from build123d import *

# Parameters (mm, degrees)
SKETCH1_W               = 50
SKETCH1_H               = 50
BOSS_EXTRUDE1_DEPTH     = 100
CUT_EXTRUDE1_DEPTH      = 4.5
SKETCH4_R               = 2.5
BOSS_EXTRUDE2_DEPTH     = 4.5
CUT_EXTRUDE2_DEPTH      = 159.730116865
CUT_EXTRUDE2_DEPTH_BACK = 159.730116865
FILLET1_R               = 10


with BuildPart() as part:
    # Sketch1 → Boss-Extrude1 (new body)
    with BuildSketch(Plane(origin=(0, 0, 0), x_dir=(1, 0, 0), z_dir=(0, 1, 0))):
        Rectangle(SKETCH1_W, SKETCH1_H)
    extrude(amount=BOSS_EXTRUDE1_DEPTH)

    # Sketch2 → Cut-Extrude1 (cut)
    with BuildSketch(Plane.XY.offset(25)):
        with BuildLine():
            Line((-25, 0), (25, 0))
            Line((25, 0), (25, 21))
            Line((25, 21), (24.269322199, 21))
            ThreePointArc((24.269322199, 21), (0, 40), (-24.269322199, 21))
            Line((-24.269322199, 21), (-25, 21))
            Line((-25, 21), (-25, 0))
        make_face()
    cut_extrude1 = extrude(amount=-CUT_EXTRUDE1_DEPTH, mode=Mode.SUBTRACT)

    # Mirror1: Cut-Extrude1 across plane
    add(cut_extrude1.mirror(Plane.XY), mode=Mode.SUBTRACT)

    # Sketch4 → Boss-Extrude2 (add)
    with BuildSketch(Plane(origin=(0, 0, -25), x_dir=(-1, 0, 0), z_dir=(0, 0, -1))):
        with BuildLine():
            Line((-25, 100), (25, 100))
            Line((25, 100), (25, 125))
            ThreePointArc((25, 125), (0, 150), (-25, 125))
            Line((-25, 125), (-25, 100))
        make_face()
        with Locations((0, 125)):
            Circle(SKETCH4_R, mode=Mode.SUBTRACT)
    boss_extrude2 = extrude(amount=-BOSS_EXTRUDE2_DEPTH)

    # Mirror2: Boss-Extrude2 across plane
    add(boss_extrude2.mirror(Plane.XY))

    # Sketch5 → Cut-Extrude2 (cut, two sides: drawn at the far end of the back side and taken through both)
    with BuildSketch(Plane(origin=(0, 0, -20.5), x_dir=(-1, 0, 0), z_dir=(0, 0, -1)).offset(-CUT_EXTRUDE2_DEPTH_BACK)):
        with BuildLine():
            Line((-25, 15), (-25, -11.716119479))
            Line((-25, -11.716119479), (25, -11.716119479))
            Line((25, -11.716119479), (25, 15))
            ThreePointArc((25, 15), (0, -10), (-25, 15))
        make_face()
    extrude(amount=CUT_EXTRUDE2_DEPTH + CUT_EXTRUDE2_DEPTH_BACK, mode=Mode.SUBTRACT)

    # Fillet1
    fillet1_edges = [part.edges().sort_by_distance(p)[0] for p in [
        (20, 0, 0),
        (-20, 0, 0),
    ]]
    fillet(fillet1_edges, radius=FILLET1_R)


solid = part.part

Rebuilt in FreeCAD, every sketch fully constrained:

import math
import FreeCAD as App
import Part
import Sketcher


def edges_at(feature, points):
    """Names of the edges that pass closest to the given points."""
    edges = feature.Shape.Edges
    near = lambda p: min(range(len(edges)), key=lambda i: edges[i].distToShape(Part.Vertex(*p))[0])
    return sorted({f"Edge{near(p) + 1}" for p in points})


def add_polygon(sketch, points):
    """Adds a closed chain of lines whose ends are joined by coincident constraints."""
    first, n = sketch.GeometryCount, len(points)
    for a, b in zip(points, points[1:] + points[:1]):
        sketch.addGeometry(Part.LineSegment(App.Vector(*a, 0), App.Vector(*b, 0)), False)
    for i in range(n):
        sketch.addConstraint(Sketcher.Constraint("Coincident", first + i, 2, first + (i + 1) % n, 1))

doc = App.newDocument("Part")
params = doc.addObject("Spreadsheet::Sheet", "Params")
for row, (alias, value) in enumerate([
    ("sketch1_width", "50 mm"),
    ("pad1_length", "100 mm"),
    ("sketch2_radius", "25 mm"),
    ("sketch2_width", "50 mm"),
    ("sketch2_height", "21 mm"),
    ("pocket1_length", "4.5 mm"),
    ("sketch3_diameter", "5 mm"),
    ("sketch3_radius", "25 mm"),
    ("sketch3_height", "25 mm"),
    ("pad2_length", "4.5 mm"),
    ("sketch4_radius", "25 mm"),
    ("fillet_radius", "10 mm"),
], start=1):
    params.set(f"A{row}", alias)
    params.set(f"B{row}", "=" + value)
    params.setAlias(f"B{row}", alias)

body = doc.addObject("PartDesign::Body", "Body")

sketch1 = doc.addObject("Sketcher::SketchObject", "Sketch")
body.addObject(sketch1)
sketch1.AttachmentSupport = (doc.XZ_Plane, [""])
sketch1.MapMode = "FlatFace"
add_polygon(sketch1, [(-25, -25), (-25, 25), (25, 25), (25, -25)])
sketch1.addConstraint(Sketcher.Constraint("Vertical", 0))
sketch1.addConstraint(Sketcher.Constraint("Horizontal", 1))
sketch1.addConstraint(Sketcher.Constraint("Vertical", 2))
sketch1.addConstraint(Sketcher.Constraint("Horizontal", 3))
sketch1.addConstraint(Sketcher.Constraint("Symmetric", 0, 2, 2, 2, -1, 1))
sketch1.addConstraint(Sketcher.Constraint("Equal", 3, 0))
sketch1.addConstraint(Sketcher.Constraint("DistanceX", 1, 1, 1, 2, 50.0))
sketch1.setExpression("Constraints[10]", "Params.sketch1_width")
pad1 = doc.addObject("PartDesign::Pad", "Pad")
body.addObject(pad1)
pad1.Profile = sketch1
pad1.setExpression("Length", "Params.pad1_length")
pad1.Reversed = True

sketch2 = doc.addObject("Sketcher::SketchObject", "Sketch001")
body.addObject(sketch2)
sketch2.AttachmentSupport = (doc.XY_Plane, [""])
sketch2.MapMode = "FlatFace"
sketch2.AttachmentOffset = App.Placement(App.Vector(0, 0, 25), App.Rotation())
sketch2.addGeometry(Part.LineSegment(App.Vector(-25, 0, 0), App.Vector(25, 0, 0)), False)
sketch2.addGeometry(Part.LineSegment(App.Vector(25, 0, 0), App.Vector(25, 21, 0)), False)
sketch2.addGeometry(Part.LineSegment(App.Vector(25, 21, 0), App.Vector(24.3, 21, 0)), False)
sketch2.addGeometry(Part.ArcOfCircle(Part.Circle(App.Vector(0, 15, 0), App.Vector(0, 0, 1), 25), math.radians(14), math.radians(166)), False)
sketch2.addGeometry(Part.LineSegment(App.Vector(-24.3, 21, 0), App.Vector(-25, 21, 0)), False)
sketch2.addGeometry(Part.LineSegment(App.Vector(-25, 21, 0), App.Vector(-25, 0, 0)), False)
sketch2.addConstraint(Sketcher.Constraint("Coincident", 0, 2, 1, 1))
sketch2.addConstraint(Sketcher.Constraint("Coincident", 1, 2, 2, 1))
sketch2.addConstraint(Sketcher.Constraint("Coincident", 2, 2, 3, 1))
sketch2.addConstraint(Sketcher.Constraint("Coincident", 3, 2, 4, 1))
sketch2.addConstraint(Sketcher.Constraint("Coincident", 4, 2, 5, 1))
sketch2.addConstraint(Sketcher.Constraint("Coincident", 5, 2, 0, 1))
sketch2.addConstraint(Sketcher.Constraint("Horizontal", 0))
sketch2.addConstraint(Sketcher.Constraint("Vertical", 1))
sketch2.addConstraint(Sketcher.Constraint("Horizontal", 2))
sketch2.addConstraint(Sketcher.Constraint("Horizontal", 4))
sketch2.addConstraint(Sketcher.Constraint("Vertical", 5))
sketch2.addConstraint(Sketcher.Constraint("Symmetric", 0, 2, 5, 2, -1, 1))
sketch2.addConstraint(Sketcher.Constraint("Symmetric", 2, 2, 3, 2, -2))
sketch2.addConstraint(Sketcher.Constraint("Radius", 3, 25.0))
sketch2.addConstraint(Sketcher.Constraint("DistanceX", 0, 1, 0, 2, 50.0))
sketch2.addConstraint(Sketcher.Constraint("DistanceY", 1, 1, 1, 2, 21.0))
sketch2.addConstraint(Sketcher.Constraint("DistanceY", -1, 1, 3, 3, 15.0))
sketch2.setExpression("Constraints[13]", "Params.sketch2_radius")
sketch2.setExpression("Constraints[14]", "Params.sketch2_width")
sketch2.setExpression("Constraints[15]", "Params.sketch2_height")
pocket1 = doc.addObject("PartDesign::Pocket", "Pocket")
body.addObject(pocket1)
pocket1.Profile = sketch2
pocket1.setExpression("Length", "Params.pocket1_length")
doc.recompute()

mirrored = doc.addObject("PartDesign::Mirrored", "Mirrored")
body.addObject(mirrored)
mirrored.Originals = [pocket1]
mirrored.MirrorPlane = (doc.XY_Plane, [""])
body.Tip = mirrored

sketch3 = doc.addObject("Sketcher::SketchObject", "Sketch002")
body.addObject(sketch3)
sketch3.AttachmentSupport = (doc.XY_Plane, [""])
sketch3.MapMode = "FlatFace"
sketch3.AttachmentOffset = App.Placement(App.Vector(0, 0, -25), App.Rotation())
sketch3.addGeometry(Part.LineSegment(App.Vector(25, 100, 0), App.Vector(-25, 100, 0)), False)
sketch3.addGeometry(Part.LineSegment(App.Vector(-25, 100, 0), App.Vector(-25, 125, 0)), False)
sketch3.addGeometry(Part.ArcOfCircle(Part.Circle(App.Vector(0, 125, 0), App.Vector(0, 0, 1), 25), math.radians(0), math.radians(180)), False)
sketch3.addGeometry(Part.LineSegment(App.Vector(25, 125, 0), App.Vector(25, 100, 0)), False)
sketch3.addGeometry(Part.Circle(App.Vector(0, 125, 0), App.Vector(0, 0, 1), 2.5), False)
sketch3.addConstraint(Sketcher.Constraint("Coincident", 0, 2, 1, 1))
sketch3.addConstraint(Sketcher.Constraint("Tangent", 1, 2, 2, 2))
sketch3.addConstraint(Sketcher.Constraint("Tangent", 2, 1, 3, 1))
sketch3.addConstraint(Sketcher.Constraint("Coincident", 3, 2, 0, 1))
sketch3.addConstraint(Sketcher.Constraint("Horizontal", 0))
sketch3.addConstraint(Sketcher.Constraint("Vertical", 1))
sketch3.addConstraint(Sketcher.Constraint("Vertical", 3))
sketch3.addConstraint(Sketcher.Constraint("Coincident", 4, 3, 2, 3))
sketch3.addConstraint(Sketcher.Constraint("PointOnObject", 2, 3, -2))
sketch3.addConstraint(Sketcher.Constraint("Diameter", 4, 5.0))
sketch3.addConstraint(Sketcher.Constraint("Radius", 2, 25.0))
sketch3.addConstraint(Sketcher.Constraint("DistanceY", 1, 1, 1, 2, 25.0))
sketch3.addConstraint(Sketcher.Constraint("DistanceY", -1, 1, 2, 3, 125.0))
sketch3.setExpression("Constraints[9]", "Params.sketch3_diameter")
sketch3.setExpression("Constraints[10]", "Params.sketch3_radius")
sketch3.setExpression("Constraints[11]", "Params.sketch3_height")
pad2 = doc.addObject("PartDesign::Pad", "Pad001")
body.addObject(pad2)
pad2.Profile = sketch3
pad2.setExpression("Length", "Params.pad2_length")
doc.recompute()

mirrored2 = doc.addObject("PartDesign::Mirrored", "Mirrored001")
body.addObject(mirrored2)
mirrored2.Originals = [pad2]
mirrored2.MirrorPlane = (doc.XY_Plane, [""])
body.Tip = mirrored2

sketch4 = doc.addObject("Sketcher::SketchObject", "Sketch003")
body.addObject(sketch4)
sketch4.AttachmentSupport = (doc.XY_Plane, [""])
sketch4.MapMode = "FlatFace"
sketch4.AttachmentOffset = App.Placement(App.Vector(0, 0, -20.5), App.Rotation())
sketch4.addGeometry(Part.LineSegment(App.Vector(25, 15, 0), App.Vector(25, -12, 0)), False)
sketch4.addGeometry(Part.LineSegment(App.Vector(25, -12, 0), App.Vector(-25, -12, 0)), False)
sketch4.addGeometry(Part.LineSegment(App.Vector(-25, -12, 0), App.Vector(-25, 15, 0)), False)
sketch4.addGeometry(Part.ArcOfCircle(Part.Circle(App.Vector(0, 15, 0), App.Vector(0, 0, 1), 25), math.radians(180), math.radians(360)), False)
sketch4.addConstraint(Sketcher.Constraint("Coincident", 0, 2, 1, 1))
sketch4.addConstraint(Sketcher.Constraint("Coincident", 1, 2, 2, 1))
sketch4.addConstraint(Sketcher.Constraint("Tangent", 2, 2, 3, 1))
sketch4.addConstraint(Sketcher.Constraint("Tangent", 3, 2, 0, 1))
sketch4.addConstraint(Sketcher.Constraint("Vertical", 0))
sketch4.addConstraint(Sketcher.Constraint("Horizontal", 1))
sketch4.addConstraint(Sketcher.Constraint("Vertical", 2))
sketch4.addConstraint(Sketcher.Constraint("PointOnObject", 3, 3, -2))
sketch4.addConstraint(Sketcher.Constraint("Radius", 3, 25.0))
sketch4.addConstraint(Sketcher.Constraint("DistanceY", -1, 1, 3, 3, 15.0))
sketch4.addConstraint(Sketcher.Constraint("DistanceY", 0, 2, 0, 1, 26.716119))
sketch4.setExpression("Constraints[8]", "Params.sketch4_radius")
pocket2 = doc.addObject("PartDesign::Pocket", "Pocket001")
body.addObject(pocket2)
pocket2.Profile = sketch4
pocket2.Type = "ThroughAll"
pocket2.Midplane = True
doc.recompute()

fillet = doc.addObject("PartDesign::Fillet", "Fillet")
body.addObject(fillet)
fillet.Base = (pocket2, edges_at(pocket2, [(20, 0, 0), (-20, 0, 0)]))
fillet.setExpression("Radius", "Params.fillet_radius")

doc.recompute()
